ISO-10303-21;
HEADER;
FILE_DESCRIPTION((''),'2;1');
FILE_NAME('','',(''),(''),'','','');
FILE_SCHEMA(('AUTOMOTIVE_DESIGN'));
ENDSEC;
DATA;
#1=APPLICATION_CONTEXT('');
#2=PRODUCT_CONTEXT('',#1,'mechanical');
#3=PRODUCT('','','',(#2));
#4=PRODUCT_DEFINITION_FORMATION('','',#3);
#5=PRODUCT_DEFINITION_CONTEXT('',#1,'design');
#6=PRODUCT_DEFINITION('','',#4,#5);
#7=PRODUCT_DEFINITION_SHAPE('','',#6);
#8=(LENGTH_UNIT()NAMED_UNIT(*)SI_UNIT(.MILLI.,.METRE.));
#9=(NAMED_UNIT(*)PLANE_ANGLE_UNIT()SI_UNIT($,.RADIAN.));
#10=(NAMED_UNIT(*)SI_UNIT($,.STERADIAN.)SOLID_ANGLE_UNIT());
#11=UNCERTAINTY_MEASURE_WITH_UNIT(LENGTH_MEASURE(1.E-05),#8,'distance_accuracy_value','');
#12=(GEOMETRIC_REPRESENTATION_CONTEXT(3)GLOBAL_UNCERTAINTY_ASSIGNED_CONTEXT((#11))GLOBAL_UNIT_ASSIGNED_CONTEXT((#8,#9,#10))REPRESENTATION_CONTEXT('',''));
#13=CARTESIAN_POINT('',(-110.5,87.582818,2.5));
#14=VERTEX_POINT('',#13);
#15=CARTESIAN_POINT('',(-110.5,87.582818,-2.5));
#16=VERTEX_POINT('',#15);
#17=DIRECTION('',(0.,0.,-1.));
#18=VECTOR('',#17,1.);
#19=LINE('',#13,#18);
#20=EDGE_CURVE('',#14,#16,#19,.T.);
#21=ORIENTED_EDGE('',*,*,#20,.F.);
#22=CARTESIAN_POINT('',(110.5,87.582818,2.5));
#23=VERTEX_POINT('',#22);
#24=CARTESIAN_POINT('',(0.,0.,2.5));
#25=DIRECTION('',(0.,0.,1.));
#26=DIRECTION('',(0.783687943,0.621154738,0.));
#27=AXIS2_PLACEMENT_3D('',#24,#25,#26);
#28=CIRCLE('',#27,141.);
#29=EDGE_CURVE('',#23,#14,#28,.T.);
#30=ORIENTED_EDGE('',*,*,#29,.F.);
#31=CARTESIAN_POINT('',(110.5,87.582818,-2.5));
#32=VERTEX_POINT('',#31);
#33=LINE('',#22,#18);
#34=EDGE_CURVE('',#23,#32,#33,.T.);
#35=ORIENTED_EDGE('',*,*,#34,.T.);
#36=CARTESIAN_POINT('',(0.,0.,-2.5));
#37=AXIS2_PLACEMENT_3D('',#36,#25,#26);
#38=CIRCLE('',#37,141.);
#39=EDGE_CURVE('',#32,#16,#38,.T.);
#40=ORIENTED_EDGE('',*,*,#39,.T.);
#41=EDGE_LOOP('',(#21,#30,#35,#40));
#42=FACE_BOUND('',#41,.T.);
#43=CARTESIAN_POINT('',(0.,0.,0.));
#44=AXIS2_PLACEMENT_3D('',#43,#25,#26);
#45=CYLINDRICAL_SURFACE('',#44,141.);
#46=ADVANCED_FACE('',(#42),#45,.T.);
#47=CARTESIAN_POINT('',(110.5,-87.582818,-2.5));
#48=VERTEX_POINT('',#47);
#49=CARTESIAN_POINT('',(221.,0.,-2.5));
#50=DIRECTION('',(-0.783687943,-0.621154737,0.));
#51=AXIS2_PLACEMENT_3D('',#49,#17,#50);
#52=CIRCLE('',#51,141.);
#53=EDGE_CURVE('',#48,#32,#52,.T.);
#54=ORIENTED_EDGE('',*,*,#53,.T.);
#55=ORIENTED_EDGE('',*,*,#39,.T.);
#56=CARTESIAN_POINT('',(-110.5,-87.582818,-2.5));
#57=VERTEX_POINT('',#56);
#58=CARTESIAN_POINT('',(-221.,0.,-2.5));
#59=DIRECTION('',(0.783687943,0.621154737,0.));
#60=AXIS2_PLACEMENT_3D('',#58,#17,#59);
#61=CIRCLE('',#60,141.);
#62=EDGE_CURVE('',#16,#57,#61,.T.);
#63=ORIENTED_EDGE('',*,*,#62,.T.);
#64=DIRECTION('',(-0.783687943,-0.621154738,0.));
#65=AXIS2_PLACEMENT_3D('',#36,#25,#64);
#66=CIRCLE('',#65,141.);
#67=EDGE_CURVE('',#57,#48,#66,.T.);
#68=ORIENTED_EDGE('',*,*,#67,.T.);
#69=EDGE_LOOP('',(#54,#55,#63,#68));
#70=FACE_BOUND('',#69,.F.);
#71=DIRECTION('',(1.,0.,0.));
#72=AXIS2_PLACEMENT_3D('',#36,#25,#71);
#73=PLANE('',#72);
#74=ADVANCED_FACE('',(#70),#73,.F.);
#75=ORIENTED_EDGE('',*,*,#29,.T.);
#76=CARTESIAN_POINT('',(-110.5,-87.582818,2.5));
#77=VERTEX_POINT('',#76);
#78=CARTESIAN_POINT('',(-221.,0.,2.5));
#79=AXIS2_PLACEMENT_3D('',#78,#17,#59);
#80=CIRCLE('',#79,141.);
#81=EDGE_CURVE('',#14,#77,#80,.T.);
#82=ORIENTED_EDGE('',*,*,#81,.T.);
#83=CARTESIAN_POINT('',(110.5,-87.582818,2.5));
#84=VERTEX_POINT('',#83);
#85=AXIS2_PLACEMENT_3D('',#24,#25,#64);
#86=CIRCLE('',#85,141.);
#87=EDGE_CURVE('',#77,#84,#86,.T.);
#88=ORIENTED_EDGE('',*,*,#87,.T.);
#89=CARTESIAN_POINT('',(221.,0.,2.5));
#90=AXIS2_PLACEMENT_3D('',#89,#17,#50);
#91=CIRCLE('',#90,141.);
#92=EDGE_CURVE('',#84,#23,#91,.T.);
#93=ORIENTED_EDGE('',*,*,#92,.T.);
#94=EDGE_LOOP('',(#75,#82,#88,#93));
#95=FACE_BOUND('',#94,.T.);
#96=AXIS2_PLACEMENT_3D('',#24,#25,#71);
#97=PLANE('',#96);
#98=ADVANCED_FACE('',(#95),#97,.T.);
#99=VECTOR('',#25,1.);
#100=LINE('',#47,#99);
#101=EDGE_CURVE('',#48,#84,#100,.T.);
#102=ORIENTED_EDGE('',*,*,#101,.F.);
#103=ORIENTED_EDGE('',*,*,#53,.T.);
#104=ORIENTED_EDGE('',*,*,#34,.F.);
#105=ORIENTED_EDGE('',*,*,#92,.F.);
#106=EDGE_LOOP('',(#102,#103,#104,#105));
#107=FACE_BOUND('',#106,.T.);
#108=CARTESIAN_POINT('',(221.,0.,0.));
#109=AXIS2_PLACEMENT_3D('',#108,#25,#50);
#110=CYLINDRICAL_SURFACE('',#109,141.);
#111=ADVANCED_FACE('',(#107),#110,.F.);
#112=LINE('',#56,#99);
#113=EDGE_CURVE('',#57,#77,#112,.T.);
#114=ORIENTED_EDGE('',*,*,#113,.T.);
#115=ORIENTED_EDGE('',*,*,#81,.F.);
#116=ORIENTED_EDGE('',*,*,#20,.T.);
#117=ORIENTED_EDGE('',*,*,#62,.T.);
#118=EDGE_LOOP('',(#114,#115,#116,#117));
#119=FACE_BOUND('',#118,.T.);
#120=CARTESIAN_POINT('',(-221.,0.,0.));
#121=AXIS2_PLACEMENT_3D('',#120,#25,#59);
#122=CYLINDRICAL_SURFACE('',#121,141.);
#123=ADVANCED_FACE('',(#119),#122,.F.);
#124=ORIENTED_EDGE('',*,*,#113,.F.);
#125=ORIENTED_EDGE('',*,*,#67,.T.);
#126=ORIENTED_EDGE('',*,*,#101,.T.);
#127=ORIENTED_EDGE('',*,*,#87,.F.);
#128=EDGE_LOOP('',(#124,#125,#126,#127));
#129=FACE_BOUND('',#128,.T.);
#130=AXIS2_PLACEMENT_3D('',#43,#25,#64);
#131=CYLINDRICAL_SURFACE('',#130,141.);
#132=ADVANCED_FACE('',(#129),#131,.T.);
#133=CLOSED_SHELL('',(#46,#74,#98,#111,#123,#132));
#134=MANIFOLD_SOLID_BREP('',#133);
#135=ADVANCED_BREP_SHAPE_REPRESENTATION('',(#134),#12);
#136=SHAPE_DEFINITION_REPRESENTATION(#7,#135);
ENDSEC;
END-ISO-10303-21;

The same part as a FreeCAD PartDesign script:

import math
import FreeCAD as App
import Part
import Sketcher

V = App.Vector

doc = App.newDocument("Part")
params = doc.addObject("Spreadsheet::Sheet", "Params")
for row, (alias, value) in enumerate([
    ("sketch1_radius", "141 mm"),
    ("pad1_length", "2.5 mm"),
    ("pad1_length2", "2.5 mm"),
], start=1):
    params.set(f"A{row}", alias)
    params.set(f"B{row}", "=" + value)
    params.setAlias(f"B{row}", alias)

body = doc.addObject("PartDesign::Body", "Body")

sketch1 = body.newObject("Sketcher::SketchObject", "Sketch")
sketch1.AttachmentSupport = (doc.getObject("XY_Plane"), [""])
sketch1.MapMode = "FlatFace"
sketch1.addGeometry(Part.ArcOfCircle(Part.Circle(V(-221, 0, 0), V(0, 0, 1), 141), math.radians(-38), math.radians(38)), False)
sketch1.addGeometry(Part.ArcOfCircle(Part.Circle(V(0, 0, 0), V(0, 0, 1), 141), math.radians(-142), math.radians(-38)), False)
sketch1.addGeometry(Part.ArcOfCircle(Part.Circle(V(221, 0, 0), V(0, 0, 1), 141), math.radians(142), math.radians(218)), False)
sketch1.addGeometry(Part.ArcOfCircle(Part.Circle(V(0, 0, 0), V(0, 0, 1), 141), math.radians(38), math.radians(142)), False)
sketch1.addConstraint(Sketcher.Constraint("Coincident", 0, 1, 1, 1))
sketch1.addConstraint(Sketcher.Constraint("Coincident", 1, 2, 2, 2))
sketch1.addConstraint(Sketcher.Constraint("Coincident", 2, 1, 3, 1))
sketch1.addConstraint(Sketcher.Constraint("Coincident", 3, 2, 0, 2))
sketch1.addConstraint(Sketcher.Constraint("Coincident", 1, 3, -1, 1))
sketch1.addConstraint(Sketcher.Constraint("Coincident", 3, 3, -1, 1))
sketch1.addConstraint(Sketcher.Constraint("Equal", 0, 1))
sketch1.addConstraint(Sketcher.Constraint("Equal", 1, 2))
sketch1.addConstraint(Sketcher.Constraint("Equal", 2, 3))
sketch1.addConstraint(Sketcher.Constraint("Symmetric", 0, 3, 2, 3, -1, 1))
sketch1.addConstraint(Sketcher.Constraint("PointOnObject", 0, 3, -1))
sketch1.addConstraint(Sketcher.Constraint("Radius", 0, 141.0))
sketch1.addConstraint(Sketcher.Constraint("DistanceX", 0, 3, -1, 1, 221.0))
sketch1.setExpression("Constraints[11]", "Params.sketch1_radius")
pad1 = body.newObject("PartDesign::Pad", "Pad")
pad1.Profile = sketch1
pad1.Type = "TwoLengths"
pad1.setExpression("Length", "Params.pad1_length")
pad1.setExpression("Length2", "Params.pad1_length2")

doc.recompute()
